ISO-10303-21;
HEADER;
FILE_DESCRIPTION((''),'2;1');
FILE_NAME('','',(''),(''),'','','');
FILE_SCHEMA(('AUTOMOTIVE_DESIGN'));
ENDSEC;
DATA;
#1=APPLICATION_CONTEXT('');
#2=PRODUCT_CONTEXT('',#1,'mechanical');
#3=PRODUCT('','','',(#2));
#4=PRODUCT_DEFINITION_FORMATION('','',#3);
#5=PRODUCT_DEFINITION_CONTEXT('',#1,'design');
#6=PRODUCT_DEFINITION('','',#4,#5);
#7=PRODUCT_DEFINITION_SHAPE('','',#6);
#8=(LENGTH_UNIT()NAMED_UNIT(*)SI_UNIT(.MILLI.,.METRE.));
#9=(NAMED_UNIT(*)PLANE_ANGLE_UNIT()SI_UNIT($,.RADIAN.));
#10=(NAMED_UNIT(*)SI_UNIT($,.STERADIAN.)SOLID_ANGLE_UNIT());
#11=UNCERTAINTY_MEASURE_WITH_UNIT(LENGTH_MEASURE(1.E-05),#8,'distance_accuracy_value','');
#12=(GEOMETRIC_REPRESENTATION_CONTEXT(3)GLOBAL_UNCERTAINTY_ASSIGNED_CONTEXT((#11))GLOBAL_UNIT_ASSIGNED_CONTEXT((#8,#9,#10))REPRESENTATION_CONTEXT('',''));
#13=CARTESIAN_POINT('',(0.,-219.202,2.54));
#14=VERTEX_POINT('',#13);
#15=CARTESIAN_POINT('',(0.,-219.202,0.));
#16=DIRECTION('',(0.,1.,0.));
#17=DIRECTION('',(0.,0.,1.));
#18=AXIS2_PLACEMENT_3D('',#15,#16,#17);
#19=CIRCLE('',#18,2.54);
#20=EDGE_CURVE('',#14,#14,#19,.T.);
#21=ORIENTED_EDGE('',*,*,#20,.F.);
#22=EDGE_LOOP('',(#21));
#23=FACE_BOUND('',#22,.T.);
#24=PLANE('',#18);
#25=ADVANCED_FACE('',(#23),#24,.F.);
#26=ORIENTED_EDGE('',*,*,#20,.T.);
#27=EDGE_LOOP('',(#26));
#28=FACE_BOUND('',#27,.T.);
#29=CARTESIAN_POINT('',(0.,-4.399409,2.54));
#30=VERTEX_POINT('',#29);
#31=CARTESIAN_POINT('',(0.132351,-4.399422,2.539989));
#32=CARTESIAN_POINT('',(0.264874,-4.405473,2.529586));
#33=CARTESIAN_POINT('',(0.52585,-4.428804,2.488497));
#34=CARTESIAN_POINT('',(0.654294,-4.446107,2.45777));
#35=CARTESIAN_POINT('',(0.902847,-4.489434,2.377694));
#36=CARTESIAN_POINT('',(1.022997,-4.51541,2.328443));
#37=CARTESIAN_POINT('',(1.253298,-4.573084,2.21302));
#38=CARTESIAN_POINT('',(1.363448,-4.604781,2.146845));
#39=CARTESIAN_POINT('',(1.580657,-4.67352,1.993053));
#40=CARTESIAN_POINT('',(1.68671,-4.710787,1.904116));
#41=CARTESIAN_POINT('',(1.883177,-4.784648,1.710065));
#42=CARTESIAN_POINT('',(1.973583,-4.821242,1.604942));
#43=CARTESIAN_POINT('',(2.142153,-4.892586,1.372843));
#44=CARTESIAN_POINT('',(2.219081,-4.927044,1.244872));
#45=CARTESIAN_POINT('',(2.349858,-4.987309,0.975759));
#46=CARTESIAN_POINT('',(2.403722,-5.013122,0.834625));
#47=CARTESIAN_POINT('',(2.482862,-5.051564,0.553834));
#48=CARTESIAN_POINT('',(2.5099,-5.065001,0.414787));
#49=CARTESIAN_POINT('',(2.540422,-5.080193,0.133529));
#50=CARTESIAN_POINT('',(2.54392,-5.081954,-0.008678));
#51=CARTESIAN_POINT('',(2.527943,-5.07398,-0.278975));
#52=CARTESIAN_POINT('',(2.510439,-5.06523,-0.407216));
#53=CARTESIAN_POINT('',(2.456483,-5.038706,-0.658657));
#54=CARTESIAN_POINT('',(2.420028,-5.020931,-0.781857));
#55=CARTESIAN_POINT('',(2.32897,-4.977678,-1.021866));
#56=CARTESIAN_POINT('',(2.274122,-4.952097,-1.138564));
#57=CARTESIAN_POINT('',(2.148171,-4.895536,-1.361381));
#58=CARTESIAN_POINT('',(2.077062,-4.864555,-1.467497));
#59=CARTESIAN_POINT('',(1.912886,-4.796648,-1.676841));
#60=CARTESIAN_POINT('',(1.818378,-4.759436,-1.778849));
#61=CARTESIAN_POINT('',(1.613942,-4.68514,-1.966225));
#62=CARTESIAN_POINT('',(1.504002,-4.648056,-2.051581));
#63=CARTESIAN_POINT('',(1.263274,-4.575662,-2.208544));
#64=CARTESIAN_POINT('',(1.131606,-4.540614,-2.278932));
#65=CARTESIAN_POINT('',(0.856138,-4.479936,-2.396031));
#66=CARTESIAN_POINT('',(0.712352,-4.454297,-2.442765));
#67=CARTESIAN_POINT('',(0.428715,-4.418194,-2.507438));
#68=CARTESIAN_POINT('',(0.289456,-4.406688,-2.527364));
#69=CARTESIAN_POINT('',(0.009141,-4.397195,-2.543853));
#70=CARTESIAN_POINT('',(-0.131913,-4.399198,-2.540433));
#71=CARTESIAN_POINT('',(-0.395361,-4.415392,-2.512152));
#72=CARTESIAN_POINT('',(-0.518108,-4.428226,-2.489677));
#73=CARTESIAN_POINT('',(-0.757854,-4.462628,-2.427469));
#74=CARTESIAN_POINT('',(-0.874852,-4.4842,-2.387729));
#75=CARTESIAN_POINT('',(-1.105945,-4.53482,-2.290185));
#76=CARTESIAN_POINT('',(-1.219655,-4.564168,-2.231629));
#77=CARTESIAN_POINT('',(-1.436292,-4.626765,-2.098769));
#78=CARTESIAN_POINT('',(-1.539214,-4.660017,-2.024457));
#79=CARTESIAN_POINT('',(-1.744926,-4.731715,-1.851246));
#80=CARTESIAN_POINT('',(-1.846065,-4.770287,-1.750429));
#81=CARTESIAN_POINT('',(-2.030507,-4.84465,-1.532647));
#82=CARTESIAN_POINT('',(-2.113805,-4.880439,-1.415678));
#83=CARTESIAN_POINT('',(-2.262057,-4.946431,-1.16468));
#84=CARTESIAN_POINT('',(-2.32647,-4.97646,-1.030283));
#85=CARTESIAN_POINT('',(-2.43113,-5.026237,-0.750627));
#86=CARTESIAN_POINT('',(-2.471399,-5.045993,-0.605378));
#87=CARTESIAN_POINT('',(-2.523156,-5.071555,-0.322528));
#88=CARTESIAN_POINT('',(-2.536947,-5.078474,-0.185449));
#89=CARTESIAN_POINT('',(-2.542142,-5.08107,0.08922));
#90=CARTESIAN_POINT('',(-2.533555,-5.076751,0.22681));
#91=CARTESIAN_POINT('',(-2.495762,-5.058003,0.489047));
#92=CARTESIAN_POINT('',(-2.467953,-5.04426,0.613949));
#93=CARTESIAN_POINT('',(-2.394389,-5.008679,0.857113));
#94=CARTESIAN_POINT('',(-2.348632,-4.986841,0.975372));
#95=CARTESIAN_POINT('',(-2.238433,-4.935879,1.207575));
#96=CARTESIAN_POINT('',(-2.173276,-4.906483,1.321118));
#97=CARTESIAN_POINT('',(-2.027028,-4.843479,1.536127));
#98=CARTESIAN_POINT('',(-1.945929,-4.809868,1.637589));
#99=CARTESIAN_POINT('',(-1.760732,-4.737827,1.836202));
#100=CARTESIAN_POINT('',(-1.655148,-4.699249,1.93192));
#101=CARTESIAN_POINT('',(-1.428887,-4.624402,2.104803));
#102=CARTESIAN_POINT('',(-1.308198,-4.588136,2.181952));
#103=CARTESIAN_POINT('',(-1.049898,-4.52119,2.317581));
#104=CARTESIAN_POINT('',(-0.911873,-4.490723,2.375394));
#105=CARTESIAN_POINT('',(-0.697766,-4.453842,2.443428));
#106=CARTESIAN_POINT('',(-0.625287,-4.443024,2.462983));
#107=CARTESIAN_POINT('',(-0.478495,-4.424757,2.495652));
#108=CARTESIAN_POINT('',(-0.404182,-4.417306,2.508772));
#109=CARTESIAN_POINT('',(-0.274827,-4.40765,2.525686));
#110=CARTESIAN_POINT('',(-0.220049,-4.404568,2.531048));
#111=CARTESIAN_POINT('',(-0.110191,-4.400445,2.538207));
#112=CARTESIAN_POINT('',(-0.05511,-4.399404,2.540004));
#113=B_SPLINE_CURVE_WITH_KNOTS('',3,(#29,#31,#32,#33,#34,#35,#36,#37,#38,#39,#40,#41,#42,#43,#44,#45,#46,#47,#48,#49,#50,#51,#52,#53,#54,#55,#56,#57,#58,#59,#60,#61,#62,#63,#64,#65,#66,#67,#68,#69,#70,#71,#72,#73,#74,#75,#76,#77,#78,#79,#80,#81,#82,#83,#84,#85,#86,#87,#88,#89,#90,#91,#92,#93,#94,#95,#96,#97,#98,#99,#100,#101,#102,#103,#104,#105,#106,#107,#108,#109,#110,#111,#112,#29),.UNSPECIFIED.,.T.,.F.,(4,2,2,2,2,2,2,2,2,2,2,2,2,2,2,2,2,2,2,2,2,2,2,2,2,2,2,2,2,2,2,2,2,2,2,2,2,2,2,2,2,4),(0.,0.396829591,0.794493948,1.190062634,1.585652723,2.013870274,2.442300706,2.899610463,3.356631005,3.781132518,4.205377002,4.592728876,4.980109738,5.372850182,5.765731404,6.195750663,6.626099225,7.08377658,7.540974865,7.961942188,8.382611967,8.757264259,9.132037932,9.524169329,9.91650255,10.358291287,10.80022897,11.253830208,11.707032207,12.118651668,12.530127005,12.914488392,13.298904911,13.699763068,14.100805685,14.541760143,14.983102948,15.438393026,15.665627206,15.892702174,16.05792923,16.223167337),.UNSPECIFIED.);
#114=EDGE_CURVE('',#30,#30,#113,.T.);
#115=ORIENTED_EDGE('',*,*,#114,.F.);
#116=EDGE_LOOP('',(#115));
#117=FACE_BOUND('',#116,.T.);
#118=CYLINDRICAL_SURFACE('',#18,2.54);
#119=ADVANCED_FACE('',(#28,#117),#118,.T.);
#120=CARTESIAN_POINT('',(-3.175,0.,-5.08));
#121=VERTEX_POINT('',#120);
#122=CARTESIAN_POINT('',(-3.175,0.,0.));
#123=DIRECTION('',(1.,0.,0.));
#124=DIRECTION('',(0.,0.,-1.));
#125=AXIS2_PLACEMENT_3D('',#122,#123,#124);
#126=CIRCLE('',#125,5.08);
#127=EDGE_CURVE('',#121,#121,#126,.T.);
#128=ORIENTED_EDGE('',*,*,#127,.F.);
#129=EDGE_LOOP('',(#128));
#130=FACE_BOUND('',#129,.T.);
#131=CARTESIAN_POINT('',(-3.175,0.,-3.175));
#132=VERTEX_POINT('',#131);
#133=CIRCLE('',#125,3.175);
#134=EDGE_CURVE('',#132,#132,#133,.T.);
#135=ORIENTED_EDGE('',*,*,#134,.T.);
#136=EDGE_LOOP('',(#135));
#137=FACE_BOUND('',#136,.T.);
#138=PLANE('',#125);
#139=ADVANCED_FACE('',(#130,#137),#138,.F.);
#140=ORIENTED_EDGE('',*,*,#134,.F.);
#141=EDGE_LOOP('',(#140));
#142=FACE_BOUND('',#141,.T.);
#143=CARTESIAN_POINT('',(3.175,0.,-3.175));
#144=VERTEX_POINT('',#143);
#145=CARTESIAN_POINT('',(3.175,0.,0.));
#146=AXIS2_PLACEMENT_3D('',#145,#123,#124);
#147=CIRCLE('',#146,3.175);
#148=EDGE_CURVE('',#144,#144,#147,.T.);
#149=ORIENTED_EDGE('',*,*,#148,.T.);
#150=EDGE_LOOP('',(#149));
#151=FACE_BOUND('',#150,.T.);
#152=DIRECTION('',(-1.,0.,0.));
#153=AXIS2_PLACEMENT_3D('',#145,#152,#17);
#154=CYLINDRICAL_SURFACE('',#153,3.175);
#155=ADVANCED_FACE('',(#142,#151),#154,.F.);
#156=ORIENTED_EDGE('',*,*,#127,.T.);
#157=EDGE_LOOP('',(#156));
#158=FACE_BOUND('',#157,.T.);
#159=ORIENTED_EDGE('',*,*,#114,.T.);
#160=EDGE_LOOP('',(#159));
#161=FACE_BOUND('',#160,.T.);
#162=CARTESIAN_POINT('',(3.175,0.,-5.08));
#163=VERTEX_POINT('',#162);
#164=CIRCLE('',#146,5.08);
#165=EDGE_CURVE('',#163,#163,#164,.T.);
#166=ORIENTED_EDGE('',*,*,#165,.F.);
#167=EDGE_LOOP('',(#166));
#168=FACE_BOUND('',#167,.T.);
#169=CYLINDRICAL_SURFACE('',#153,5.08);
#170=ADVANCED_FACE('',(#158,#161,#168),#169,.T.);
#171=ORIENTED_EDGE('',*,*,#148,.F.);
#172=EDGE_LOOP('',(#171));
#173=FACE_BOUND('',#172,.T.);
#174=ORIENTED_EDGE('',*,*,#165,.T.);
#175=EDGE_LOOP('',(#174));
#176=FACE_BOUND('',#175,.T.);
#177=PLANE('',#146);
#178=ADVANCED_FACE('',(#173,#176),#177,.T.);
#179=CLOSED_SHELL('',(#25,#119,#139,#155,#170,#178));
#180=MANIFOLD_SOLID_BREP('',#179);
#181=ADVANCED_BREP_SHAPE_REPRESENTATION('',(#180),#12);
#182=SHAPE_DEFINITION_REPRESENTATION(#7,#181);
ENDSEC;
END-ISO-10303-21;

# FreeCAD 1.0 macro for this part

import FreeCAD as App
import Part
import Sketcher
from FreeCAD import Vector
Q = App.Units.Quantity

doc = App.newDocument("Part")
body = doc.addObject("PartDesign::Body", "Body")

# Sketch on YZ plane
sketch1 = body.newObject("Sketcher::SketchObject", "Sketch")
sketch1.AttachmentSupport = (doc.getObject("YZ_Plane"), [""])
sketch1.MapMode = "FlatFace"
sketch1.addGeometry(Part.Circle(Vector(0, 0, 0), Vector(0, 0, 1), 5.1), False)
sketch1.addGeometry(Part.Circle(Vector(0, 0, 0), Vector(0, 0, 1), 3.2), False)
sketch1.addConstraint(Sketcher.Constraint("Coincident", 0, 3, -1, 1))
sketch1.addConstraint(Sketcher.Constraint("Coincident", 1, 3, -1, 1))
sketch1.addConstraint(Sketcher.Constraint("Diameter", 0, Q("0.4 in")))
sketch1.addConstraint(Sketcher.Constraint("Diameter", 1, Q("0.25 in")))
pad1 = body.newObject("PartDesign::Pad", "Pad")
pad1.Profile = sketch1
pad1.Length = Q("0.25 in")
pad1.Midplane = True

# Sketch on XZ plane
sketch2 = body.newObject("Sketcher::SketchObject", "Sketch001")
sketch2.AttachmentSupport = (doc.getObject("XZ_Plane"), [""])
sketch2.MapMode = "FlatFace"
sketch2.AttachmentOffset = App.Placement(Vector(0, 0, 0.13 * 25.4), App.Rotation())
sketch2.addGeometry(Part.Circle(Vector(0, 0, 0), Vector(0, 0, 1), 2.5), False)
sketch2.addConstraint(Sketcher.Constraint("Coincident", 0, 3, -1, 1))
sketch2.addConstraint(Sketcher.Constraint("Diameter", 0, Q("0.2 in")))
pad2 = body.newObject("PartDesign::Pad", "Pad001")
pad2.Profile = sketch2
pad2.Length = Q("8.5 in")

doc.recompute()
